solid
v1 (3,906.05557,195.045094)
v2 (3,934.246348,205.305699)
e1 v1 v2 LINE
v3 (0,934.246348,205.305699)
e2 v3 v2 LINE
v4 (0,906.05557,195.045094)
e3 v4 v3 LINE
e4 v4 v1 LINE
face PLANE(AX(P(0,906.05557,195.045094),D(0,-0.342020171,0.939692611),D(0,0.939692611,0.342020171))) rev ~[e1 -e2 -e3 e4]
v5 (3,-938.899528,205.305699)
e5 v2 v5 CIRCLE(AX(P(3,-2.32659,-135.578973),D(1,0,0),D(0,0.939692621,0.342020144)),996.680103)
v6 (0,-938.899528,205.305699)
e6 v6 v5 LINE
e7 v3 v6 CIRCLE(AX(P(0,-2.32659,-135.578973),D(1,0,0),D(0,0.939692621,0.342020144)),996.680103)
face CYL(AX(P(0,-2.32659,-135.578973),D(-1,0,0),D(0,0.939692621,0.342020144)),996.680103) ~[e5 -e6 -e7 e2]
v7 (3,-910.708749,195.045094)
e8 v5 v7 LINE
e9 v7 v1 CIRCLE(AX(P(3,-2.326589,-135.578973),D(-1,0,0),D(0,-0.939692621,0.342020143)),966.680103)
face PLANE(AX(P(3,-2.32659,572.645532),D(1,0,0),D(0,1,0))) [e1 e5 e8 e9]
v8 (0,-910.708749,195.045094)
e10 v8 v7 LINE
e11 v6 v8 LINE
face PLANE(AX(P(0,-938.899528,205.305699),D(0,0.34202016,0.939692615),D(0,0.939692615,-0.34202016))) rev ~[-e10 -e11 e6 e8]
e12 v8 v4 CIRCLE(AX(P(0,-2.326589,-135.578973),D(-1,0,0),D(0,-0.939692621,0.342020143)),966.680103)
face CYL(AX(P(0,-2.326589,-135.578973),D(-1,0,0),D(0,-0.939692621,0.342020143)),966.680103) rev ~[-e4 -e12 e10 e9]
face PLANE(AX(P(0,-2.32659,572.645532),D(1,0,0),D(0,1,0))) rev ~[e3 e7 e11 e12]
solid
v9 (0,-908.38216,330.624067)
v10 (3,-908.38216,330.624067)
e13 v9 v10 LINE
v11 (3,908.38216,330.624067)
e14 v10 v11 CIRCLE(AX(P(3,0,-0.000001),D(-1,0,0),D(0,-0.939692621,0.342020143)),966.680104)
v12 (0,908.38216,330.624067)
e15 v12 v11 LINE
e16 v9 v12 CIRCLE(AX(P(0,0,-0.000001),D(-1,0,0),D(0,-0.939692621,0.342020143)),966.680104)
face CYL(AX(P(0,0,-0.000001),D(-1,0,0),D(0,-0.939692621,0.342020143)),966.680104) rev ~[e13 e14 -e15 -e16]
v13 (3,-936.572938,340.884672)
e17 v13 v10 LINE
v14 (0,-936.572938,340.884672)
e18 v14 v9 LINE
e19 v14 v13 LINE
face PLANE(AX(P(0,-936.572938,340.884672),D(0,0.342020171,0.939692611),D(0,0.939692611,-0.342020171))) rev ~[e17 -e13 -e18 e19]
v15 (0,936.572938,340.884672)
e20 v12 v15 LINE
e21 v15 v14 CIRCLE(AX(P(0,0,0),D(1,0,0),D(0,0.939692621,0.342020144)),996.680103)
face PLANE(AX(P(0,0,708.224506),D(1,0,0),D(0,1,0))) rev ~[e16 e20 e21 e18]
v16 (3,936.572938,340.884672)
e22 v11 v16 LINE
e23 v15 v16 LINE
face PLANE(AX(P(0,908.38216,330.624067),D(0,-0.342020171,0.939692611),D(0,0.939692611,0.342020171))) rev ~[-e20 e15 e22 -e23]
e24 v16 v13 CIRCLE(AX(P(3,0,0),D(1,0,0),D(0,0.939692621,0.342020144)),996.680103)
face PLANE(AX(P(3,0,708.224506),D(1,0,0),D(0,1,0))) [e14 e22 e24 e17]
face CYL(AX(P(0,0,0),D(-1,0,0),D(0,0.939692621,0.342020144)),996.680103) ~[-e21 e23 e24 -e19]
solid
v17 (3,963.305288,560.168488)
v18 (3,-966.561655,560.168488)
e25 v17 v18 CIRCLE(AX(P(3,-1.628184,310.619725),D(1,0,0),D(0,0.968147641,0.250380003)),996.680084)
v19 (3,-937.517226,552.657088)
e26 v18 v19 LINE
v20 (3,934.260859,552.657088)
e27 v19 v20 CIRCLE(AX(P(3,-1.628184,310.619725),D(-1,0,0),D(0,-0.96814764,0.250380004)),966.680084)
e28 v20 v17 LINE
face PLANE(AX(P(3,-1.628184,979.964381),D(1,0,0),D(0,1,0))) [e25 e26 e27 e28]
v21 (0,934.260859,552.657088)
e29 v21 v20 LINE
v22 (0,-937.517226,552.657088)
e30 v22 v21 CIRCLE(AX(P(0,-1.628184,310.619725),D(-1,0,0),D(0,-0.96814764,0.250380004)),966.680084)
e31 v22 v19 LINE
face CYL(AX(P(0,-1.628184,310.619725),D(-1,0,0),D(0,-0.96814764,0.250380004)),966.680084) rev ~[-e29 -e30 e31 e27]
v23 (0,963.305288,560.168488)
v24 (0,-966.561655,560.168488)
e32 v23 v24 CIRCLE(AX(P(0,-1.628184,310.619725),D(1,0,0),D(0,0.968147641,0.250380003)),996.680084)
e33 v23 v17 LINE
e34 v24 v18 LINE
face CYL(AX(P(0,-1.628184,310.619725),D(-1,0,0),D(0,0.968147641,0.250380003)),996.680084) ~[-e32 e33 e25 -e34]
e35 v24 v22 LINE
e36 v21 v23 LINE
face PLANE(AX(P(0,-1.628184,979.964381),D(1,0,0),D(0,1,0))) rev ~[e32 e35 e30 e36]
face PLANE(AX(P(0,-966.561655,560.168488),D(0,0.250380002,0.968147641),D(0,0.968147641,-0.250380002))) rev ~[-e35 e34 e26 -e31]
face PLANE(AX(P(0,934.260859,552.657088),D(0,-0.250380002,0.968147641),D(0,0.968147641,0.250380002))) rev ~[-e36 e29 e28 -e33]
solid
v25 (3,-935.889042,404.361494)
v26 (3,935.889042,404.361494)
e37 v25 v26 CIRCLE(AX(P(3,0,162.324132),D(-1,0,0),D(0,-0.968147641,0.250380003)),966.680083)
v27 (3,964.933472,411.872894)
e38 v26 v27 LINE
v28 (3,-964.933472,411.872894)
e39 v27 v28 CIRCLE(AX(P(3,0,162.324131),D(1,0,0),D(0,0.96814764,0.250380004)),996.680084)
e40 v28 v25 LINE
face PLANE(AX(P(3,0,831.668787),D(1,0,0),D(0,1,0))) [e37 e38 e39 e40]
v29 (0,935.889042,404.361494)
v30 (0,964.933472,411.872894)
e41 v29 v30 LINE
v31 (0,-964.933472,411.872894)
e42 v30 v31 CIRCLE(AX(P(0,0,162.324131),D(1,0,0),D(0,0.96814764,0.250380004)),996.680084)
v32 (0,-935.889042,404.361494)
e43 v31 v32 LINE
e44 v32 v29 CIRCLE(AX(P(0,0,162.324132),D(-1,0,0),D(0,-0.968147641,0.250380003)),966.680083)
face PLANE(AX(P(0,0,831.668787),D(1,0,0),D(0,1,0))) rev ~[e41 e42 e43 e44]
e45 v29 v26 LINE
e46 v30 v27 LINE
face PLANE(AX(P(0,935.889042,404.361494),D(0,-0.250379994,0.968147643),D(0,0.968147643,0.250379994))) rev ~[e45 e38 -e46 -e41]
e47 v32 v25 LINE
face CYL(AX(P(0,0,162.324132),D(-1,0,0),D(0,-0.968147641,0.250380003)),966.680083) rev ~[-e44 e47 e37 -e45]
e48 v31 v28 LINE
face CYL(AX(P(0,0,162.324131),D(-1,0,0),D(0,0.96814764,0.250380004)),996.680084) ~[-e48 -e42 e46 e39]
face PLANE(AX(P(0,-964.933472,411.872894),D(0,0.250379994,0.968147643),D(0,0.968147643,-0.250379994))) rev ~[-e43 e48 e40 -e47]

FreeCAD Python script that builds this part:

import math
import FreeCAD as App
import Part
import Sketcher
Q = App.Units.Quantity

doc = App.newDocument("Part")
params = doc.addObject("Spreadsheet::Sheet", "Params")
for row, (alias, value) in enumerate([
    ("sketch1_length", "30 mm"),
    ("pad1_length", "3 mm"),
    ("sketch2_length", "30.000001 mm"),
    ("pad2_length", "3 mm"),
], start=1):
    params.set(f"A{row}", alias)
    params.set(f"B{row}", "=" + value)
    params.setAlias(f"B{row}", alias)

body = doc.addObject("PartDesign::Body", "Body")
body.AllowCompound = True

# Sketch on YZ plane
sketch1 = doc.addObject("Sketcher::SketchObject", "Sketch")
body.addObject(sketch1)
sketch1.AttachmentSupport = (doc.YZ_Plane, [""])
sketch1.MapMode = "FlatFace"
sketch1.addGeometry(Part.LineSegment(App.Vector(-937, 341, 0), App.Vector(-908, 331, 0)), False)
sketch1.addGeometry(Part.ArcOfCircle(Part.Circle(App.Vector(0, 0, 0), App.Vector(0, 0, 1), 967), math.radians(20), math.radians(160)), False)
sketch1.addGeometry(Part.LineSegment(App.Vector(908, 331, 0), App.Vector(937, 341, 0)), False)
sketch1.addGeometry(Part.ArcOfCircle(Part.Circle(App.Vector(0, 0, 0), App.Vector(0, 0, 1), 997), math.radians(20), math.radians(160)), False)
sketch1.addGeometry(Part.ArcOfCircle(Part.Circle(App.Vector(-2, -136, 0), App.Vector(0, 0, 1), 997), math.radians(20), math.radians(160)), False)
sketch1.addGeometry(Part.LineSegment(App.Vector(-939, 205, 0), App.Vector(-911, 195, 0)), False)
sketch1.addGeometry(Part.ArcOfCircle(Part.Circle(App.Vector(-2, -136, 0), App.Vector(0, 0, 1), 967), math.radians(20), math.radians(160)), False)
sketch1.addGeometry(Part.LineSegment(App.Vector(906, 195, 0), App.Vector(934, 205, 0)), False)
sketch1.addConstraint(Sketcher.Constraint("Coincident", 0, 2, 1, 2))
sketch1.addConstraint(Sketcher.Constraint("Coincident", 1, 1, 2, 1))
sketch1.addConstraint(Sketcher.Constraint("Coincident", 2, 2, 3, 1))
sketch1.addConstraint(Sketcher.Constraint("Coincident", 3, 2, 0, 1))
sketch1.addConstraint(Sketcher.Constraint("Coincident", 4, 2, 5, 1))
sketch1.addConstraint(Sketcher.Constraint("Coincident", 5, 2, 6, 2))
sketch1.addConstraint(Sketcher.Constraint("Coincident", 6, 1, 7, 1))
sketch1.addConstraint(Sketcher.Constraint("Coincident", 7, 2, 4, 1))
sketch1.addConstraint(Sketcher.Constraint("Coincident", 1, 3, -1, 1))
sketch1.addConstraint(Sketcher.Constraint("Coincident", 3, 3, -1, 1))
sketch1.addConstraint(Sketcher.Constraint("Coincident", 6, 3, 4, 3))
sketch1.addConstraint(Sketcher.Constraint("Equal", 3, 4))
sketch1.addConstraint(Sketcher.Constraint("Equal", 1, 6))
sketch1.addConstraint(Sketcher.Constraint("Parallel", 0, 5))
sketch1.addConstraint(Sketcher.Constraint("Parallel", 2, 7))
sketch1.addConstraint(Sketcher.Constraint("Angle", 0, Q("-20.000002 deg")))
sketch1.addConstraint(Sketcher.Constraint("Angle", 2, Q("20.000002 deg")))
sketch1.addConstraint(Sketcher.Constraint("Distance", 0, Q("30 mm")))
sketch1.addConstraint(Sketcher.Constraint("Radius", 1, Q("966.680104 mm")))
sketch1.addConstraint(Sketcher.Constraint("DistanceY", -1, 1, 7, 2, Q("205.305699 mm")))
sketch1.addConstraint(Sketcher.Constraint("DistanceX", 4, 3, -1, 1, Q("2.32659 mm")))
sketch1.addConstraint(Sketcher.Constraint("DistanceX", 0, 2, -1, 1, Q("908.38216 mm")))
sketch1.addConstraint(Sketcher.Constraint("DistanceX", -1, 1, 2, 2, Q("936.572938 mm")))
sketch1.addConstraint(Sketcher.Constraint("DistanceX", 5, 2, -1, 1, Q("910.708749 mm")))
sketch1.addConstraint(Sketcher.Constraint("DistanceX", -1, 1, 7, 2, Q("934.246348 mm")))
sketch1.setExpression("Constraints[17]", "Params.sketch1_length")
pad1 = doc.addObject("PartDesign::Pad", "Pad")
body.addObject(pad1)
pad1.Profile = sketch1
pad1.setExpression("Length", "Params.pad1_length")
body2 = doc.addObject("PartDesign::Body", "Body001")
body2.AllowCompound = True

# Sketch on YZ plane
sketch2 = doc.addObject("Sketcher::SketchObject", "Sketch001")
body2.addObject(sketch2)
sketch2.AttachmentSupport = (doc.getObject("YZ_Plane001"), [""])
sketch2.MapMode = "FlatFace"
sketch2.addGeometry(Part.LineSegment(App.Vector(-965, 412, 0), App.Vector(-936, 404, 0)), False)
sketch2.addGeometry(Part.ArcOfCircle(Part.Circle(App.Vector(0, 162, 0), App.Vector(0, 0, 1), 967), math.radians(14), math.radians(166)), False)
sketch2.addGeometry(Part.LineSegment(App.Vector(936, 404, 0), App.Vector(965, 412, 0)), False)
sketch2.addGeometry(Part.ArcOfCircle(Part.Circle(App.Vector(0, 162, 0), App.Vector(0, 0, 1), 997), math.radians(14), math.radians(166)), False)
sketch2.addGeometry(Part.LineSegment(App.Vector(-967, 560, 0), App.Vector(-938, 553, 0)), False)
sketch2.addGeometry(Part.ArcOfCircle(Part.Circle(App.Vector(-2, 311, 0), App.Vector(0, 0, 1), 967), math.radians(14), math.radians(166)), False)
sketch2.addGeometry(Part.LineSegment(App.Vector(934, 553, 0), App.Vector(963, 560, 0)), False)
sketch2.addGeometry(Part.ArcOfCircle(Part.Circle(App.Vector(-2, 311, 0), App.Vector(0, 0, 1), 997), math.radians(14), math.radians(166)), False)
sketch2.addConstraint(Sketcher.Constraint("Coincident", 0, 2, 1, 2))
sketch2.addConstraint(Sketcher.Constraint("Coincident", 1, 1, 2, 1))
sketch2.addConstraint(Sketcher.Constraint("Coincident", 2, 2, 3, 1))
sketch2.addConstraint(Sketcher.Constraint("Coincident", 3, 2, 0, 1))
sketch2.addConstraint(Sketcher.Constraint("Coincident", 4, 2, 5, 2))
sketch2.addConstraint(Sketcher.Constraint("Coincident", 5, 1, 6, 1))
sketch2.addConstraint(Sketcher.Constraint("Coincident", 6, 2, 7, 1))
sketch2.addConstraint(Sketcher.Constraint("Coincident", 7, 2, 4, 1))
sketch2.addConstraint(Sketcher.Constraint("Coincident", 3, 3, 1, 3))
sketch2.addConstraint(Sketcher.Constraint("Coincident", 7, 3, 5, 3))
sketch2.addConstraint(Sketcher.Constraint("Equal", 1, 5))
sketch2.addConstraint(Sketcher.Constraint("Equal", 3, 7))
sketch2.addConstraint(Sketcher.Constraint("PointOnObject", 1, 3, -2))
sketch2.addConstraint(Sketcher.Constraint("Parallel", 0, 4))
sketch2.addConstraint(Sketcher.Constraint("Parallel", 2, 6))
sketch2.addConstraint(Sketcher.Constraint("Distance", 0, Q("30.000001 mm")))
sketch2.addConstraint(Sketcher.Constraint("Angle", 0, Q("-14.499999 deg")))
sketch2.addConstraint(Sketcher.Constraint("Angle", 2, Q("14.499999 deg")))
sketch2.addConstraint(Sketcher.Constraint("Radius", 1, Q("966.680083 mm")))
sketch2.addConstraint(Sketcher.Constraint("DistanceY", -1, 1, 1, 3, Q("162.324132 mm")))
sketch2.addConstraint(Sketcher.Constraint("DistanceX", 0, 2, -1, 1, Q("935.889042 mm")))
sketch2.addConstraint(Sketcher.Constraint("DistanceX", -1, 1, 2, 2, Q("964.933472 mm")))
sketch2.addConstraint(Sketcher.Constraint("DistanceY", -1, 1, 4, 2, Q("552.657088 mm")))
sketch2.addConstraint(Sketcher.Constraint("DistanceX", -1, 1, 6, 2, Q("963.305288 mm")))
sketch2.addConstraint(Sketcher.Constraint("DistanceY", -1, 1, 6, 2, Q("560.168488 mm")))
sketch2.addConstraint(Sketcher.Constraint("DistanceX", 0, 2, 7, 3, Q("934.260859 mm")))
sketch2.setExpression("Constraints[15]", "Params.sketch2_length")
pad2 = doc.addObject("PartDesign::Pad", "Pad001")
body2.addObject(pad2)
pad2.Profile = sketch2
pad2.setExpression("Length", "Params.pad2_length")

doc.recompute()
